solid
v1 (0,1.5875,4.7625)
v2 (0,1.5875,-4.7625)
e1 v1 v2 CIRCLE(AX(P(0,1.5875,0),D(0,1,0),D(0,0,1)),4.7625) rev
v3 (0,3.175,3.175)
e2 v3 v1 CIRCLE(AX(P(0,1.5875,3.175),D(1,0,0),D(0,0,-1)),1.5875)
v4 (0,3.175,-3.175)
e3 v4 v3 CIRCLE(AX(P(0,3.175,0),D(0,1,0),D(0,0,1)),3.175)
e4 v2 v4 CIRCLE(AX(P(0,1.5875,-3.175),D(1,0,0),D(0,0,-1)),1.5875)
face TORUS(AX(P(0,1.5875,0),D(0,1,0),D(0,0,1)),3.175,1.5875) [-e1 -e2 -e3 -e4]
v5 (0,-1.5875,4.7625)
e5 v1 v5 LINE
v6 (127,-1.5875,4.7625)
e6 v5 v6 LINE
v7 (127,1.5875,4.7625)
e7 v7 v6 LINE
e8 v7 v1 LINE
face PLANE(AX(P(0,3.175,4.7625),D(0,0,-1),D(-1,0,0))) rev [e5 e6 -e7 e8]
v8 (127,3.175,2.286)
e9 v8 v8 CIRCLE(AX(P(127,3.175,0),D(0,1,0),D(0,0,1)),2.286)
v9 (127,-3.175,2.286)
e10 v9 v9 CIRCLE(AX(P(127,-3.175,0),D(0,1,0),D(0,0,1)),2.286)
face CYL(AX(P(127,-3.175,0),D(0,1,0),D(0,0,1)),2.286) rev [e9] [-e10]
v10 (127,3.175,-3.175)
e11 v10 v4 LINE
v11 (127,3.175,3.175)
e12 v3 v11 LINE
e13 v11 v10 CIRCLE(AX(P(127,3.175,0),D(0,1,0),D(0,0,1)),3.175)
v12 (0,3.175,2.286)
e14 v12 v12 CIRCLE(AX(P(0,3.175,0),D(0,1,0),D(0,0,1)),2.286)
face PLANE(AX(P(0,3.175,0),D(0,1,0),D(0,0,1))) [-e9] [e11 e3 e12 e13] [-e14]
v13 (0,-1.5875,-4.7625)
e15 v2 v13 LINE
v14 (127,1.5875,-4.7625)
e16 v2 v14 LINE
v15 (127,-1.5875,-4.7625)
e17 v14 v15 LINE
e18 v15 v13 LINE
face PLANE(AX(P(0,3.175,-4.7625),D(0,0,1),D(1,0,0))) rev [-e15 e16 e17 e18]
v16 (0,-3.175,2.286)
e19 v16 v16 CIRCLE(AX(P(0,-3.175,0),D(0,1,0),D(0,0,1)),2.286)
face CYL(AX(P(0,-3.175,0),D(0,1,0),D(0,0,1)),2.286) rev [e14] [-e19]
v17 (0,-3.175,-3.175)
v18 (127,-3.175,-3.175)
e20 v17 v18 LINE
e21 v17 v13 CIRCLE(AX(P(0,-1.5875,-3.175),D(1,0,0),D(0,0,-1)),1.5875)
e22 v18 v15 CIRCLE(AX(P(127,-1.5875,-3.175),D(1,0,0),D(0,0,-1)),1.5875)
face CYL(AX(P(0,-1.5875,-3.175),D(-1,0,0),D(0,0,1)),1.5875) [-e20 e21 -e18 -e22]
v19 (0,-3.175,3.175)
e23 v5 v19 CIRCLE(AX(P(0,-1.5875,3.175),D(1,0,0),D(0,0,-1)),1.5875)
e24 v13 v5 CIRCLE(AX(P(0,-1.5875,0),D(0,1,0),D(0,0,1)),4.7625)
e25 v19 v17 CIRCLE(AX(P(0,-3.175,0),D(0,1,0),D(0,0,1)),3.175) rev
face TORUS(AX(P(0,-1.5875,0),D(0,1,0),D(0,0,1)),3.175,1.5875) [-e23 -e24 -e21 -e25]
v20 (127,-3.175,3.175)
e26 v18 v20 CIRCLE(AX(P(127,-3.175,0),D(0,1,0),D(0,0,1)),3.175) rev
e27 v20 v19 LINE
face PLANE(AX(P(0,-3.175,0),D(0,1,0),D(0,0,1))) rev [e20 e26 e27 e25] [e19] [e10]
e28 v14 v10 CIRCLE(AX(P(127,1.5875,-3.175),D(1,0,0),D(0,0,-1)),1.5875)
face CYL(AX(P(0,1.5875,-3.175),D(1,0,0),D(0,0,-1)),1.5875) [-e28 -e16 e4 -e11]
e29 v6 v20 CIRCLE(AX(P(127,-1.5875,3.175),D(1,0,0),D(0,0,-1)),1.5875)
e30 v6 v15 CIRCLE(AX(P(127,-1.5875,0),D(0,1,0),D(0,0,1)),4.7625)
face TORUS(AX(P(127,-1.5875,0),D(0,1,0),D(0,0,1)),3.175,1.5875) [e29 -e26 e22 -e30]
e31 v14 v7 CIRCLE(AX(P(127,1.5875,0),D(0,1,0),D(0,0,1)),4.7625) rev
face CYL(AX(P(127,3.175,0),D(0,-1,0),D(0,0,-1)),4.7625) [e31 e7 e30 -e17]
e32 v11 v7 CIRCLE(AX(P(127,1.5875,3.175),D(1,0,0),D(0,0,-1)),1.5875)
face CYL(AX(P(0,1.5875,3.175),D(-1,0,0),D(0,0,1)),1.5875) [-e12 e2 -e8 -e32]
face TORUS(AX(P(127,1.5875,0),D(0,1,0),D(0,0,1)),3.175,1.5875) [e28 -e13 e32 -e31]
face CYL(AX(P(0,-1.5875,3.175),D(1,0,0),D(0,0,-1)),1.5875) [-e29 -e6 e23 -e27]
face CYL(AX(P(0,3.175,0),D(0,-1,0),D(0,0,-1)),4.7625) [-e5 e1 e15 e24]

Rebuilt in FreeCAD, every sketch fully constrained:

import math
import FreeCAD as App
import Part
import Sketcher

V = App.Vector
Q = App.Units.Quantity


def edges_at(feature, points):
    """Names of the edges that pass closest to the given points."""
    edges = feature.Shape.Edges
    near = lambda p: min(range(len(edges)), key=lambda i: edges[i].distToShape(Part.Vertex(*p))[0])
    return sorted({f"Edge{near(p) + 1}" for p in points})

doc = App.newDocument("Part")
body = doc.addObject("PartDesign::Body", "Body")

sketch1 = doc.addObject("Sketcher::SketchObject", "Sketch")
body.addObject(sketch1)
sketch1.AttachmentSupport = (doc.XZ_Plane, [""])
sketch1.MapMode = "FlatFace"
sketch1.addGeometry([
    Part.LineSegment(V(127, -4.7625, 0), V(0, -4.7625, 0)),
    Part.ArcOfCircle(Part.Circle(V(0, 0, 0), V(0, 0, 1), 4.7625), math.radians(90), math.radians(270)),
    Part.LineSegment(V(0, 4.7625, 0), V(127, 4.7625, 0)),
    Part.ArcOfCircle(Part.Circle(V(127, 0, 0), V(0, 0, 1), 4.7625), math.radians(-90), math.radians(90)),
], False)
sketch1.addConstraint([
    Sketcher.Constraint("Tangent", 0, 2, 1, 2),
    Sketcher.Constraint("Tangent", 1, 1, 2, 1),
    Sketcher.Constraint("Tangent", 2, 2, 3, 2),
    Sketcher.Constraint("Tangent", 3, 1, 0, 1),
    Sketcher.Constraint("Horizontal", 0),
    Sketcher.Constraint("Horizontal", 2),
    Sketcher.Constraint("Coincident", 1, 3, -1, 1),
    Sketcher.Constraint("DistanceX", 0, 2, 0, 1, Q("5 in")),
    Sketcher.Constraint("Radius", 1, Q("0.1875 in")),
])
pad1 = doc.addObject("PartDesign::Pad", "Pad")
body.addObject(pad1)
pad1.Profile = sketch1
pad1.Length = Q("0.25 in")
pad1.Midplane = True

sketch2 = doc.addObject("Sketcher::SketchObject", "Sketch001")
body.addObject(sketch2)
sketch2.AttachmentSupport = (doc.XZ_Plane, [""])
sketch2.MapMode = "FlatFace"
sketch2.AttachmentOffset = App.Placement(V(0, 0, -0.125 * 25.4), App.Rotation())
sketch2.addGeometry([
    Part.Circle(V(0, 0, 0), V(0, 0, 1), 2.286),
    Part.Circle(V(127, 0, 0), V(0, 0, 1), 2.286),
], False)
sketch2.addConstraint([
    Sketcher.Constraint("Coincident", 0, 3, -1, 1),
    Sketcher.Constraint("Equal", 0, 1),
    Sketcher.Constraint("PointOnObject", 1, 3, -1),
    Sketcher.Constraint("Diameter", 0, Q("0.18 in")),
    Sketcher.Constraint("DistanceX", -1, 1, 1, 3, Q("5 in")),
])
pocket1 = doc.addObject("PartDesign::Pocket", "Pocket")
body.addObject(pocket1)
pocket1.Profile = sketch2
pocket1.Type = "ThroughAll"
pocket1.Reversed = True
doc.recompute()

fillet = doc.addObject("PartDesign::Fillet", "Fillet")
body.addObject(fillet)
fillet.Base = (pocket1, edges_at(pocket1, [
    (131.762, 3.175, 0),
    (63.5, 3.175, -4.763),
    (-4.763, 3.175, 0),
    (63.5, -3.175, -4.763),
    (131.762, -3.175, 0),
    (63.5, -3.175, 4.763),
    (-4.763, -3.175, 0),
    (63.5, 3.175, 4.763),
]))
fillet.Radius = Q("0.0625 in")

doc.recompute()
